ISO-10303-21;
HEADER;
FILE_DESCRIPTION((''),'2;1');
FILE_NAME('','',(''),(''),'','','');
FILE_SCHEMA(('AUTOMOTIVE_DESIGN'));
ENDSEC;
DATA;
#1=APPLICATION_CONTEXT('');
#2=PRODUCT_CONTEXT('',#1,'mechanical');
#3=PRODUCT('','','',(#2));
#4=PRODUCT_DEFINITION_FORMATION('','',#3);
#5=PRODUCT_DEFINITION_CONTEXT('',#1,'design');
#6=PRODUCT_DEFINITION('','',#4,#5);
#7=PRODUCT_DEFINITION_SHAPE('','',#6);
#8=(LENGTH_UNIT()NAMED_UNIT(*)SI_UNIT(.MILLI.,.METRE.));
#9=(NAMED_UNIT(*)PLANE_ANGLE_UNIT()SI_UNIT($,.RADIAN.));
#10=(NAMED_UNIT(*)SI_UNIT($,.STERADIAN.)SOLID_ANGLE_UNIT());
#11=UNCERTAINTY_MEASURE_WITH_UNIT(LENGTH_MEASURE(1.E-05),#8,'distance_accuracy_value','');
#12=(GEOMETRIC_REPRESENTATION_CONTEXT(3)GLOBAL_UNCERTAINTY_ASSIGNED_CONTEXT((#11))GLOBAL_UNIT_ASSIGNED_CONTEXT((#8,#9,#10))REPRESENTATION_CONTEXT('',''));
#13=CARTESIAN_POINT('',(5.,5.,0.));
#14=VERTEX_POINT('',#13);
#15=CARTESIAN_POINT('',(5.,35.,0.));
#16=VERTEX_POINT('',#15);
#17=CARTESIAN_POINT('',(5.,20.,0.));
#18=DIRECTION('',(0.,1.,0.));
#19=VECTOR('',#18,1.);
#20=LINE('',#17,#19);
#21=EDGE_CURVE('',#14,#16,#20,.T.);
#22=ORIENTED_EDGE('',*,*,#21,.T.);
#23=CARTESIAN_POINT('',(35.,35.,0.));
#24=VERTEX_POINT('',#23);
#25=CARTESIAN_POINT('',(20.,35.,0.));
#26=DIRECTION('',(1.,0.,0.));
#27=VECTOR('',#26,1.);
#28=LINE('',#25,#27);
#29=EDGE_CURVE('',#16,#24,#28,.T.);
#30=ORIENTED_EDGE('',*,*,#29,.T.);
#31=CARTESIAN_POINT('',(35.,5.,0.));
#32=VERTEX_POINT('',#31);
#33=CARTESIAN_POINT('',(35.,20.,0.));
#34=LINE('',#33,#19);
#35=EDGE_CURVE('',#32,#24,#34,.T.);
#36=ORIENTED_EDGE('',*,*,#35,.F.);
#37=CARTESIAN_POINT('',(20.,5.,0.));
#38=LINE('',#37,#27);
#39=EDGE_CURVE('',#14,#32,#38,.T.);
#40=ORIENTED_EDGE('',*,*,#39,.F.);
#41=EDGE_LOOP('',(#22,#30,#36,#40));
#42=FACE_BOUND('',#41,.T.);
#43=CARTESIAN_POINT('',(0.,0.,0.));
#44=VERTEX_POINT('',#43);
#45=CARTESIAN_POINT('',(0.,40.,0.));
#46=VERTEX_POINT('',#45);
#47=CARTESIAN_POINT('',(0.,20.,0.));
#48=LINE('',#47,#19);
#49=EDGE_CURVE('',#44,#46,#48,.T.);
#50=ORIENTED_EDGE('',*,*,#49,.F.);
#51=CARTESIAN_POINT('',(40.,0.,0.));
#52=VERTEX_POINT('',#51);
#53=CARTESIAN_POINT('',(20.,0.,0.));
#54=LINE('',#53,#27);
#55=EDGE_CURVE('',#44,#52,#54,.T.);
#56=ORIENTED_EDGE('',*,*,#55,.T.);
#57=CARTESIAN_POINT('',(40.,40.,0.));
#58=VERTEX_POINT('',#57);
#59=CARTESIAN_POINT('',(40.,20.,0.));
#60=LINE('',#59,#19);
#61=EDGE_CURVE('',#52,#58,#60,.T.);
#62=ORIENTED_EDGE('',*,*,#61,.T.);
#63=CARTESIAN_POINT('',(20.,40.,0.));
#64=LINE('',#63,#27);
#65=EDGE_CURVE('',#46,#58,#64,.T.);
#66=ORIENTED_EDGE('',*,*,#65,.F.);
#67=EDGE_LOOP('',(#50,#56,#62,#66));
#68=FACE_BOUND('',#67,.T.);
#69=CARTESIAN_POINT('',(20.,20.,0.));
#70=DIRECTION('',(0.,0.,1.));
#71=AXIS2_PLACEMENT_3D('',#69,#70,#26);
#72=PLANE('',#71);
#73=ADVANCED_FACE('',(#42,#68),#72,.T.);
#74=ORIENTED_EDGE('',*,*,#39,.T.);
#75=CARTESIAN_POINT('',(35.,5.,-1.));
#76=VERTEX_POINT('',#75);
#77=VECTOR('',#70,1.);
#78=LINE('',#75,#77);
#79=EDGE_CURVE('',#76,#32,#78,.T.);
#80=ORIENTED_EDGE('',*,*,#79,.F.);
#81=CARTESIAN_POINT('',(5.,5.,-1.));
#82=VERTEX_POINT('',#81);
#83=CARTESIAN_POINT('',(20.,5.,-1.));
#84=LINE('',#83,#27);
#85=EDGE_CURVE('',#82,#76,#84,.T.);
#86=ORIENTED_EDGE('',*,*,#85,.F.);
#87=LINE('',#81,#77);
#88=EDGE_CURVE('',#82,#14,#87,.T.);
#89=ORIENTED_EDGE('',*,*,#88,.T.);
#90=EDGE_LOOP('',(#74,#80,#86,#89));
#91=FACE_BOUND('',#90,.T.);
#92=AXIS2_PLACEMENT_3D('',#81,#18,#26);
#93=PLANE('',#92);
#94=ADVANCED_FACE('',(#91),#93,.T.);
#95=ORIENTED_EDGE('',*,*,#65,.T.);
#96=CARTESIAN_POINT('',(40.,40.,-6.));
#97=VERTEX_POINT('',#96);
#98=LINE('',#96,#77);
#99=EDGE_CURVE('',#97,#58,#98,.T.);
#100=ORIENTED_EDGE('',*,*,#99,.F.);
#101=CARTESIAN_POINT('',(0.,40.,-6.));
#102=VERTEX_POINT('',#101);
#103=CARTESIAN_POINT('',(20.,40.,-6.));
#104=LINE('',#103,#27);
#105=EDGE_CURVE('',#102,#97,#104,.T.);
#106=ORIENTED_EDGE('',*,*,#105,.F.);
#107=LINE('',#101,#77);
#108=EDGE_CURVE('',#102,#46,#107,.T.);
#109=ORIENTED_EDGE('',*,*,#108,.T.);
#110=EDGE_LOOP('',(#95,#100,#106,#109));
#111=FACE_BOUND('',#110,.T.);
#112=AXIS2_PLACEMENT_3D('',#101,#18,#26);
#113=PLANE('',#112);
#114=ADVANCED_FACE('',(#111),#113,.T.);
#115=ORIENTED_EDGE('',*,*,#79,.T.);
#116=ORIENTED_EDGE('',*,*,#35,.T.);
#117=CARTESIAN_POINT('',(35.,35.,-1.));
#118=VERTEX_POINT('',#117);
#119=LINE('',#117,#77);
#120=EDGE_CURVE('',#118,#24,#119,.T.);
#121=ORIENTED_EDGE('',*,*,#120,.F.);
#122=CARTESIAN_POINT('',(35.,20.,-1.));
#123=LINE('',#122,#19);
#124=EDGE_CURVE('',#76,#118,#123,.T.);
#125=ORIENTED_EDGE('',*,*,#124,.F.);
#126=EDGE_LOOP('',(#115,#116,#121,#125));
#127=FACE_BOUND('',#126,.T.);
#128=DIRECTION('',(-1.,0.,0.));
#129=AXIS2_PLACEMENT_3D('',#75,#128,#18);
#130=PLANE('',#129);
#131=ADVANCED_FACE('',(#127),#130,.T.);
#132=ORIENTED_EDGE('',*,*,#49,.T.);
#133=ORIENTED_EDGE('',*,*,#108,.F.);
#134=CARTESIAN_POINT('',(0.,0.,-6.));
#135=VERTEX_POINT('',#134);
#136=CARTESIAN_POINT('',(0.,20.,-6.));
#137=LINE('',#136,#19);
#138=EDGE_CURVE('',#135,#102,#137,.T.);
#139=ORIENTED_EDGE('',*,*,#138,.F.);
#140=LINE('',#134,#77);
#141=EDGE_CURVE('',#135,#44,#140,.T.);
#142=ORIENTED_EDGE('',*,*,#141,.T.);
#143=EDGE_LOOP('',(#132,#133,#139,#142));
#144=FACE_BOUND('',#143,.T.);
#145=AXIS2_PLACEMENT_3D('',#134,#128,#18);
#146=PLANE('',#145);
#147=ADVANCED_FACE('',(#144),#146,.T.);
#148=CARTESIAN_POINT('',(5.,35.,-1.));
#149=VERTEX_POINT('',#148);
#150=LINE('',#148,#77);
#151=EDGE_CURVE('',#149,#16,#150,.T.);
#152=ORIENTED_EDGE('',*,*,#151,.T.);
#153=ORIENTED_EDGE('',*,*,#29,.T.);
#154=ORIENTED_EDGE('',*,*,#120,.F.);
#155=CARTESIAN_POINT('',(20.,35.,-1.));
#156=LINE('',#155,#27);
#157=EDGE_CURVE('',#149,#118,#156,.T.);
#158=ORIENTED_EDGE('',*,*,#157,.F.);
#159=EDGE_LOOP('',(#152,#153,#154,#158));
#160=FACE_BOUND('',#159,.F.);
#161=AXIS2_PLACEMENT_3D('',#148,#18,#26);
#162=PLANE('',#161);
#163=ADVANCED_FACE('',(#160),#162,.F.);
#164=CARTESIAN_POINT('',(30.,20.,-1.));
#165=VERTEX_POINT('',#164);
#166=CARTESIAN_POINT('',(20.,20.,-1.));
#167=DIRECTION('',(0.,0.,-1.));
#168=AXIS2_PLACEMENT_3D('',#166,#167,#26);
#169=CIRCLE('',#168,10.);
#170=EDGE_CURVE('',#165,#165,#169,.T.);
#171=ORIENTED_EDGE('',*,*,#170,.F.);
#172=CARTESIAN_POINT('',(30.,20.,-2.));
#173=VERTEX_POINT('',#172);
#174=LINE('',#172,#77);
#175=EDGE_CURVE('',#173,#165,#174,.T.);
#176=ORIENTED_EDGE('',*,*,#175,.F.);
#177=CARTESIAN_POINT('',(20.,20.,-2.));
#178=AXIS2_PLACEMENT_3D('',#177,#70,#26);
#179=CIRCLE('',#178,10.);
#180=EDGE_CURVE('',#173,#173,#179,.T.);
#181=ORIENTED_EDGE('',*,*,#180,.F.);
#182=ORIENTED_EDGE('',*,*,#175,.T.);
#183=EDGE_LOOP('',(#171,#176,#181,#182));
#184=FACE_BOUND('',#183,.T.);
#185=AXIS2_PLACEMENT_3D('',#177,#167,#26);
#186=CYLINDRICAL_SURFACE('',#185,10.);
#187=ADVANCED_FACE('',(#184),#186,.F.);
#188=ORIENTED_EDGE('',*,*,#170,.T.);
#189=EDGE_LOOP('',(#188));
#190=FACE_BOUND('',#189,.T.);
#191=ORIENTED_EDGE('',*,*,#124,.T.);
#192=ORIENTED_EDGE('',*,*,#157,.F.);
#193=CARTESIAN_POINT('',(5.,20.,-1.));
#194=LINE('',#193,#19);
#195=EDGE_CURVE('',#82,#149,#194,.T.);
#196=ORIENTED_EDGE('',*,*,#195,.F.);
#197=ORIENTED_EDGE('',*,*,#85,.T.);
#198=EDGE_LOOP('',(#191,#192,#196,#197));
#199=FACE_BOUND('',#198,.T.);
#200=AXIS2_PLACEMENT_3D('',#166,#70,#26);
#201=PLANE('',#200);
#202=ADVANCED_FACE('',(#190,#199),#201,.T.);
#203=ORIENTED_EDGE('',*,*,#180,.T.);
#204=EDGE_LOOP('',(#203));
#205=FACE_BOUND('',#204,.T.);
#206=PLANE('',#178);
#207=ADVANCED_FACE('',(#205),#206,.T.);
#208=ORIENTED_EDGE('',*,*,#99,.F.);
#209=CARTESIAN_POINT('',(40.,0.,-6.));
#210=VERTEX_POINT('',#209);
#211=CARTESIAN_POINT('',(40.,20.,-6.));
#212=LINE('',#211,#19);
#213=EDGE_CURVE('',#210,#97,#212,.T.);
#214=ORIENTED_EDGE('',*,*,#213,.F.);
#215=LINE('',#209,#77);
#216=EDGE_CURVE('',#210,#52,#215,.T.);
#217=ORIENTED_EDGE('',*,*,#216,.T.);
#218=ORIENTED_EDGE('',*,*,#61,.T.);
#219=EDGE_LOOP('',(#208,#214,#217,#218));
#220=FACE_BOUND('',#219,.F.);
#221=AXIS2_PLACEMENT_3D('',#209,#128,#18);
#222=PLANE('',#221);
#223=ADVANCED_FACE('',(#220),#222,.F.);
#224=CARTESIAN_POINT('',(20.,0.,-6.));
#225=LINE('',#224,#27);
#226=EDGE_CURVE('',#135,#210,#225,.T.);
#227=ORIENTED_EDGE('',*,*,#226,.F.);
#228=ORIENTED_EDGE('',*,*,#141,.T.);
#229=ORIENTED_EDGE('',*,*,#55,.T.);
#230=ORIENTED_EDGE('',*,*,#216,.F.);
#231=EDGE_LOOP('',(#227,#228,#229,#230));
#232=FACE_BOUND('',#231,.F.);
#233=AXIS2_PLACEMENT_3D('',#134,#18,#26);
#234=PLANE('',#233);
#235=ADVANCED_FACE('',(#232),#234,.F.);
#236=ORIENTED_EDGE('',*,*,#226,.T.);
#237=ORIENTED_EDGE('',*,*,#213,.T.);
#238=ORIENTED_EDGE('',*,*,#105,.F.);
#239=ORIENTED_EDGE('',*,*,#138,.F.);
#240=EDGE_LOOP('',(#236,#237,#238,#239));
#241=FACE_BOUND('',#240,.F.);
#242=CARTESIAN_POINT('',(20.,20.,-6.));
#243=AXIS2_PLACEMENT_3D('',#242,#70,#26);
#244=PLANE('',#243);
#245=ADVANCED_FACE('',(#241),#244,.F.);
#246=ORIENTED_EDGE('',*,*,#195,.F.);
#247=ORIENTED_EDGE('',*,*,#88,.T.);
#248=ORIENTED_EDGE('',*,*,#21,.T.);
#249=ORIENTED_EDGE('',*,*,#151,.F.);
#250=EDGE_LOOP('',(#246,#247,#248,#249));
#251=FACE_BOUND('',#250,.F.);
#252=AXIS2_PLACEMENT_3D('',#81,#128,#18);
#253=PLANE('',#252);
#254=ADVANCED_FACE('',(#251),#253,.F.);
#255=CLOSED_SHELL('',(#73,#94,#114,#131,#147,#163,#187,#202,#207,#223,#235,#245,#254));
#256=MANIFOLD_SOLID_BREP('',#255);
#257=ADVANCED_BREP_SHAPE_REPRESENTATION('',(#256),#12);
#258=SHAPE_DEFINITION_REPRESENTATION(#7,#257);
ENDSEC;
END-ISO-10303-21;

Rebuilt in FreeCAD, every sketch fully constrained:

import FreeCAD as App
import Part
import Sketcher

V = App.Vector
Q = App.Units.Quantity


def add_polygon(sketch, points):
    """Adds a closed chain of lines whose ends are joined by coincident constraints."""
    first, n = sketch.GeometryCount, len(points)
    for a, b in zip(points, points[1:] + points[:1]):
        sketch.addGeometry(Part.LineSegment(App.Vector(*a, 0), App.Vector(*b, 0)), False)
    for i in range(n):
        sketch.addConstraint(Sketcher.Constraint("Coincident", first + i, 2, first + (i + 1) % n, 1))

doc = App.newDocument("Part")
body = doc.addObject("PartDesign::Body", "Body")

# Sketch on XY plane
sketch1 = body.newObject("Sketcher::SketchObject", "Sketch")
sketch1.AttachmentSupport = (doc.getObject("XY_Plane"), [""])
sketch1.MapMode = "FlatFace"
sketch1.AttachmentOffset = App.Placement(V(0, 0, 2), App.Rotation())
add_polygon(sketch1, [(-15, 15), (-15, -15), (15, -15), (15, 15)])  # lines 0-3
sketch1.addConstraint([
    Sketcher.Constraint("Vertical", 0),
    Sketcher.Constraint("Horizontal", 1),
    Sketcher.Constraint("Vertical", 2),
    Sketcher.Constraint("Horizontal", 3),
    Sketcher.Constraint("Symmetric", 0, 2, 2, 2, -1, 1),
    Sketcher.Constraint("Equal", 3, 0),
    Sketcher.Constraint("DistanceX", 1, 1, 1, 2, Q("30 mm")),
])
pad1 = body.newObject("PartDesign::Pad", "Pad")
pad1.Profile = sketch1
pad1.Length = 1
body2 = doc.addObject("PartDesign::Body", "Body001")

# Sketch on XY plane
sketch2 = body2.newObject("Sketcher::SketchObject", "Sketch001")
sketch2.AttachmentSupport = (doc.getObject("XY_Plane001"), [""])
sketch2.MapMode = "FlatFace"
sketch2.AttachmentOffset = App.Placement(V(0, 0, 1), App.Rotation())
sketch2.addGeometry(Part.Circle(V(0, 0, 0), V(0, 0, 1), 10), False)
sketch2.addConstraint([
    Sketcher.Constraint("Coincident", 0, 3, -1, 1),
    Sketcher.Constraint("Diameter", 0, Q("20 mm")),
])
pad2 = body2.newObject("PartDesign::Pad", "Pad001")
pad2.Profile = sketch2
pad2.Length = 2
doc.recompute()

boolean = body2.newObject("PartDesign::Boolean", "Boolean")
boolean.Type = "Fuse"
boolean.addObjects([body])
body3 = doc.addObject("PartDesign::Body", "Body002")

# Sketch on XY plane
sketch3 = body3.newObject("Sketcher::SketchObject", "Sketch002")
sketch3.AttachmentSupport = (doc.getObject("XY_Plane002"), [""])
sketch3.MapMode = "FlatFace"
sketch3.AttachmentOffset = App.Placement(V(0, 0, -3), App.Rotation())
add_polygon(sketch3, [(-20, 20), (-20, -20), (20, -20), (20, 20)])  # lines 0-3
sketch3.addConstraint([
    Sketcher.Constraint("Vertical", 0),
    Sketcher.Constraint("Horizontal", 1),
    Sketcher.Constraint("Vertical", 2),
    Sketcher.Constraint("Horizontal", 3),
    Sketcher.Constraint("Symmetric", 0, 2, 2, 2, -1, 1),
    Sketcher.Constraint("Equal", 3, 0),
    Sketcher.Constraint("DistanceX", 1, 1, 1, 2, Q("40 mm")),
])
pad3 = body3.newObject("PartDesign::Pad", "Pad002")
pad3.Profile = sketch3
pad3.Length = 6
doc.recompute()

boolean2 = body3.newObject("PartDesign::Boolean", "Boolean001")
boolean2.Type = "Cut"
boolean2.addObjects([body2])
body4 = doc.addObject("PartDesign::Body", "Body003")
doc.recompute()

body3.Placement = App.Placement(V(20, 20, -3), App.Rotation(V(0, 0, 1), 0))
boolean3 = body4.newObject("PartDesign::Boolean", "Boolean002")
boolean3.Type = "Fuse"
boolean3.addObjects([body3])

doc.recompute()
